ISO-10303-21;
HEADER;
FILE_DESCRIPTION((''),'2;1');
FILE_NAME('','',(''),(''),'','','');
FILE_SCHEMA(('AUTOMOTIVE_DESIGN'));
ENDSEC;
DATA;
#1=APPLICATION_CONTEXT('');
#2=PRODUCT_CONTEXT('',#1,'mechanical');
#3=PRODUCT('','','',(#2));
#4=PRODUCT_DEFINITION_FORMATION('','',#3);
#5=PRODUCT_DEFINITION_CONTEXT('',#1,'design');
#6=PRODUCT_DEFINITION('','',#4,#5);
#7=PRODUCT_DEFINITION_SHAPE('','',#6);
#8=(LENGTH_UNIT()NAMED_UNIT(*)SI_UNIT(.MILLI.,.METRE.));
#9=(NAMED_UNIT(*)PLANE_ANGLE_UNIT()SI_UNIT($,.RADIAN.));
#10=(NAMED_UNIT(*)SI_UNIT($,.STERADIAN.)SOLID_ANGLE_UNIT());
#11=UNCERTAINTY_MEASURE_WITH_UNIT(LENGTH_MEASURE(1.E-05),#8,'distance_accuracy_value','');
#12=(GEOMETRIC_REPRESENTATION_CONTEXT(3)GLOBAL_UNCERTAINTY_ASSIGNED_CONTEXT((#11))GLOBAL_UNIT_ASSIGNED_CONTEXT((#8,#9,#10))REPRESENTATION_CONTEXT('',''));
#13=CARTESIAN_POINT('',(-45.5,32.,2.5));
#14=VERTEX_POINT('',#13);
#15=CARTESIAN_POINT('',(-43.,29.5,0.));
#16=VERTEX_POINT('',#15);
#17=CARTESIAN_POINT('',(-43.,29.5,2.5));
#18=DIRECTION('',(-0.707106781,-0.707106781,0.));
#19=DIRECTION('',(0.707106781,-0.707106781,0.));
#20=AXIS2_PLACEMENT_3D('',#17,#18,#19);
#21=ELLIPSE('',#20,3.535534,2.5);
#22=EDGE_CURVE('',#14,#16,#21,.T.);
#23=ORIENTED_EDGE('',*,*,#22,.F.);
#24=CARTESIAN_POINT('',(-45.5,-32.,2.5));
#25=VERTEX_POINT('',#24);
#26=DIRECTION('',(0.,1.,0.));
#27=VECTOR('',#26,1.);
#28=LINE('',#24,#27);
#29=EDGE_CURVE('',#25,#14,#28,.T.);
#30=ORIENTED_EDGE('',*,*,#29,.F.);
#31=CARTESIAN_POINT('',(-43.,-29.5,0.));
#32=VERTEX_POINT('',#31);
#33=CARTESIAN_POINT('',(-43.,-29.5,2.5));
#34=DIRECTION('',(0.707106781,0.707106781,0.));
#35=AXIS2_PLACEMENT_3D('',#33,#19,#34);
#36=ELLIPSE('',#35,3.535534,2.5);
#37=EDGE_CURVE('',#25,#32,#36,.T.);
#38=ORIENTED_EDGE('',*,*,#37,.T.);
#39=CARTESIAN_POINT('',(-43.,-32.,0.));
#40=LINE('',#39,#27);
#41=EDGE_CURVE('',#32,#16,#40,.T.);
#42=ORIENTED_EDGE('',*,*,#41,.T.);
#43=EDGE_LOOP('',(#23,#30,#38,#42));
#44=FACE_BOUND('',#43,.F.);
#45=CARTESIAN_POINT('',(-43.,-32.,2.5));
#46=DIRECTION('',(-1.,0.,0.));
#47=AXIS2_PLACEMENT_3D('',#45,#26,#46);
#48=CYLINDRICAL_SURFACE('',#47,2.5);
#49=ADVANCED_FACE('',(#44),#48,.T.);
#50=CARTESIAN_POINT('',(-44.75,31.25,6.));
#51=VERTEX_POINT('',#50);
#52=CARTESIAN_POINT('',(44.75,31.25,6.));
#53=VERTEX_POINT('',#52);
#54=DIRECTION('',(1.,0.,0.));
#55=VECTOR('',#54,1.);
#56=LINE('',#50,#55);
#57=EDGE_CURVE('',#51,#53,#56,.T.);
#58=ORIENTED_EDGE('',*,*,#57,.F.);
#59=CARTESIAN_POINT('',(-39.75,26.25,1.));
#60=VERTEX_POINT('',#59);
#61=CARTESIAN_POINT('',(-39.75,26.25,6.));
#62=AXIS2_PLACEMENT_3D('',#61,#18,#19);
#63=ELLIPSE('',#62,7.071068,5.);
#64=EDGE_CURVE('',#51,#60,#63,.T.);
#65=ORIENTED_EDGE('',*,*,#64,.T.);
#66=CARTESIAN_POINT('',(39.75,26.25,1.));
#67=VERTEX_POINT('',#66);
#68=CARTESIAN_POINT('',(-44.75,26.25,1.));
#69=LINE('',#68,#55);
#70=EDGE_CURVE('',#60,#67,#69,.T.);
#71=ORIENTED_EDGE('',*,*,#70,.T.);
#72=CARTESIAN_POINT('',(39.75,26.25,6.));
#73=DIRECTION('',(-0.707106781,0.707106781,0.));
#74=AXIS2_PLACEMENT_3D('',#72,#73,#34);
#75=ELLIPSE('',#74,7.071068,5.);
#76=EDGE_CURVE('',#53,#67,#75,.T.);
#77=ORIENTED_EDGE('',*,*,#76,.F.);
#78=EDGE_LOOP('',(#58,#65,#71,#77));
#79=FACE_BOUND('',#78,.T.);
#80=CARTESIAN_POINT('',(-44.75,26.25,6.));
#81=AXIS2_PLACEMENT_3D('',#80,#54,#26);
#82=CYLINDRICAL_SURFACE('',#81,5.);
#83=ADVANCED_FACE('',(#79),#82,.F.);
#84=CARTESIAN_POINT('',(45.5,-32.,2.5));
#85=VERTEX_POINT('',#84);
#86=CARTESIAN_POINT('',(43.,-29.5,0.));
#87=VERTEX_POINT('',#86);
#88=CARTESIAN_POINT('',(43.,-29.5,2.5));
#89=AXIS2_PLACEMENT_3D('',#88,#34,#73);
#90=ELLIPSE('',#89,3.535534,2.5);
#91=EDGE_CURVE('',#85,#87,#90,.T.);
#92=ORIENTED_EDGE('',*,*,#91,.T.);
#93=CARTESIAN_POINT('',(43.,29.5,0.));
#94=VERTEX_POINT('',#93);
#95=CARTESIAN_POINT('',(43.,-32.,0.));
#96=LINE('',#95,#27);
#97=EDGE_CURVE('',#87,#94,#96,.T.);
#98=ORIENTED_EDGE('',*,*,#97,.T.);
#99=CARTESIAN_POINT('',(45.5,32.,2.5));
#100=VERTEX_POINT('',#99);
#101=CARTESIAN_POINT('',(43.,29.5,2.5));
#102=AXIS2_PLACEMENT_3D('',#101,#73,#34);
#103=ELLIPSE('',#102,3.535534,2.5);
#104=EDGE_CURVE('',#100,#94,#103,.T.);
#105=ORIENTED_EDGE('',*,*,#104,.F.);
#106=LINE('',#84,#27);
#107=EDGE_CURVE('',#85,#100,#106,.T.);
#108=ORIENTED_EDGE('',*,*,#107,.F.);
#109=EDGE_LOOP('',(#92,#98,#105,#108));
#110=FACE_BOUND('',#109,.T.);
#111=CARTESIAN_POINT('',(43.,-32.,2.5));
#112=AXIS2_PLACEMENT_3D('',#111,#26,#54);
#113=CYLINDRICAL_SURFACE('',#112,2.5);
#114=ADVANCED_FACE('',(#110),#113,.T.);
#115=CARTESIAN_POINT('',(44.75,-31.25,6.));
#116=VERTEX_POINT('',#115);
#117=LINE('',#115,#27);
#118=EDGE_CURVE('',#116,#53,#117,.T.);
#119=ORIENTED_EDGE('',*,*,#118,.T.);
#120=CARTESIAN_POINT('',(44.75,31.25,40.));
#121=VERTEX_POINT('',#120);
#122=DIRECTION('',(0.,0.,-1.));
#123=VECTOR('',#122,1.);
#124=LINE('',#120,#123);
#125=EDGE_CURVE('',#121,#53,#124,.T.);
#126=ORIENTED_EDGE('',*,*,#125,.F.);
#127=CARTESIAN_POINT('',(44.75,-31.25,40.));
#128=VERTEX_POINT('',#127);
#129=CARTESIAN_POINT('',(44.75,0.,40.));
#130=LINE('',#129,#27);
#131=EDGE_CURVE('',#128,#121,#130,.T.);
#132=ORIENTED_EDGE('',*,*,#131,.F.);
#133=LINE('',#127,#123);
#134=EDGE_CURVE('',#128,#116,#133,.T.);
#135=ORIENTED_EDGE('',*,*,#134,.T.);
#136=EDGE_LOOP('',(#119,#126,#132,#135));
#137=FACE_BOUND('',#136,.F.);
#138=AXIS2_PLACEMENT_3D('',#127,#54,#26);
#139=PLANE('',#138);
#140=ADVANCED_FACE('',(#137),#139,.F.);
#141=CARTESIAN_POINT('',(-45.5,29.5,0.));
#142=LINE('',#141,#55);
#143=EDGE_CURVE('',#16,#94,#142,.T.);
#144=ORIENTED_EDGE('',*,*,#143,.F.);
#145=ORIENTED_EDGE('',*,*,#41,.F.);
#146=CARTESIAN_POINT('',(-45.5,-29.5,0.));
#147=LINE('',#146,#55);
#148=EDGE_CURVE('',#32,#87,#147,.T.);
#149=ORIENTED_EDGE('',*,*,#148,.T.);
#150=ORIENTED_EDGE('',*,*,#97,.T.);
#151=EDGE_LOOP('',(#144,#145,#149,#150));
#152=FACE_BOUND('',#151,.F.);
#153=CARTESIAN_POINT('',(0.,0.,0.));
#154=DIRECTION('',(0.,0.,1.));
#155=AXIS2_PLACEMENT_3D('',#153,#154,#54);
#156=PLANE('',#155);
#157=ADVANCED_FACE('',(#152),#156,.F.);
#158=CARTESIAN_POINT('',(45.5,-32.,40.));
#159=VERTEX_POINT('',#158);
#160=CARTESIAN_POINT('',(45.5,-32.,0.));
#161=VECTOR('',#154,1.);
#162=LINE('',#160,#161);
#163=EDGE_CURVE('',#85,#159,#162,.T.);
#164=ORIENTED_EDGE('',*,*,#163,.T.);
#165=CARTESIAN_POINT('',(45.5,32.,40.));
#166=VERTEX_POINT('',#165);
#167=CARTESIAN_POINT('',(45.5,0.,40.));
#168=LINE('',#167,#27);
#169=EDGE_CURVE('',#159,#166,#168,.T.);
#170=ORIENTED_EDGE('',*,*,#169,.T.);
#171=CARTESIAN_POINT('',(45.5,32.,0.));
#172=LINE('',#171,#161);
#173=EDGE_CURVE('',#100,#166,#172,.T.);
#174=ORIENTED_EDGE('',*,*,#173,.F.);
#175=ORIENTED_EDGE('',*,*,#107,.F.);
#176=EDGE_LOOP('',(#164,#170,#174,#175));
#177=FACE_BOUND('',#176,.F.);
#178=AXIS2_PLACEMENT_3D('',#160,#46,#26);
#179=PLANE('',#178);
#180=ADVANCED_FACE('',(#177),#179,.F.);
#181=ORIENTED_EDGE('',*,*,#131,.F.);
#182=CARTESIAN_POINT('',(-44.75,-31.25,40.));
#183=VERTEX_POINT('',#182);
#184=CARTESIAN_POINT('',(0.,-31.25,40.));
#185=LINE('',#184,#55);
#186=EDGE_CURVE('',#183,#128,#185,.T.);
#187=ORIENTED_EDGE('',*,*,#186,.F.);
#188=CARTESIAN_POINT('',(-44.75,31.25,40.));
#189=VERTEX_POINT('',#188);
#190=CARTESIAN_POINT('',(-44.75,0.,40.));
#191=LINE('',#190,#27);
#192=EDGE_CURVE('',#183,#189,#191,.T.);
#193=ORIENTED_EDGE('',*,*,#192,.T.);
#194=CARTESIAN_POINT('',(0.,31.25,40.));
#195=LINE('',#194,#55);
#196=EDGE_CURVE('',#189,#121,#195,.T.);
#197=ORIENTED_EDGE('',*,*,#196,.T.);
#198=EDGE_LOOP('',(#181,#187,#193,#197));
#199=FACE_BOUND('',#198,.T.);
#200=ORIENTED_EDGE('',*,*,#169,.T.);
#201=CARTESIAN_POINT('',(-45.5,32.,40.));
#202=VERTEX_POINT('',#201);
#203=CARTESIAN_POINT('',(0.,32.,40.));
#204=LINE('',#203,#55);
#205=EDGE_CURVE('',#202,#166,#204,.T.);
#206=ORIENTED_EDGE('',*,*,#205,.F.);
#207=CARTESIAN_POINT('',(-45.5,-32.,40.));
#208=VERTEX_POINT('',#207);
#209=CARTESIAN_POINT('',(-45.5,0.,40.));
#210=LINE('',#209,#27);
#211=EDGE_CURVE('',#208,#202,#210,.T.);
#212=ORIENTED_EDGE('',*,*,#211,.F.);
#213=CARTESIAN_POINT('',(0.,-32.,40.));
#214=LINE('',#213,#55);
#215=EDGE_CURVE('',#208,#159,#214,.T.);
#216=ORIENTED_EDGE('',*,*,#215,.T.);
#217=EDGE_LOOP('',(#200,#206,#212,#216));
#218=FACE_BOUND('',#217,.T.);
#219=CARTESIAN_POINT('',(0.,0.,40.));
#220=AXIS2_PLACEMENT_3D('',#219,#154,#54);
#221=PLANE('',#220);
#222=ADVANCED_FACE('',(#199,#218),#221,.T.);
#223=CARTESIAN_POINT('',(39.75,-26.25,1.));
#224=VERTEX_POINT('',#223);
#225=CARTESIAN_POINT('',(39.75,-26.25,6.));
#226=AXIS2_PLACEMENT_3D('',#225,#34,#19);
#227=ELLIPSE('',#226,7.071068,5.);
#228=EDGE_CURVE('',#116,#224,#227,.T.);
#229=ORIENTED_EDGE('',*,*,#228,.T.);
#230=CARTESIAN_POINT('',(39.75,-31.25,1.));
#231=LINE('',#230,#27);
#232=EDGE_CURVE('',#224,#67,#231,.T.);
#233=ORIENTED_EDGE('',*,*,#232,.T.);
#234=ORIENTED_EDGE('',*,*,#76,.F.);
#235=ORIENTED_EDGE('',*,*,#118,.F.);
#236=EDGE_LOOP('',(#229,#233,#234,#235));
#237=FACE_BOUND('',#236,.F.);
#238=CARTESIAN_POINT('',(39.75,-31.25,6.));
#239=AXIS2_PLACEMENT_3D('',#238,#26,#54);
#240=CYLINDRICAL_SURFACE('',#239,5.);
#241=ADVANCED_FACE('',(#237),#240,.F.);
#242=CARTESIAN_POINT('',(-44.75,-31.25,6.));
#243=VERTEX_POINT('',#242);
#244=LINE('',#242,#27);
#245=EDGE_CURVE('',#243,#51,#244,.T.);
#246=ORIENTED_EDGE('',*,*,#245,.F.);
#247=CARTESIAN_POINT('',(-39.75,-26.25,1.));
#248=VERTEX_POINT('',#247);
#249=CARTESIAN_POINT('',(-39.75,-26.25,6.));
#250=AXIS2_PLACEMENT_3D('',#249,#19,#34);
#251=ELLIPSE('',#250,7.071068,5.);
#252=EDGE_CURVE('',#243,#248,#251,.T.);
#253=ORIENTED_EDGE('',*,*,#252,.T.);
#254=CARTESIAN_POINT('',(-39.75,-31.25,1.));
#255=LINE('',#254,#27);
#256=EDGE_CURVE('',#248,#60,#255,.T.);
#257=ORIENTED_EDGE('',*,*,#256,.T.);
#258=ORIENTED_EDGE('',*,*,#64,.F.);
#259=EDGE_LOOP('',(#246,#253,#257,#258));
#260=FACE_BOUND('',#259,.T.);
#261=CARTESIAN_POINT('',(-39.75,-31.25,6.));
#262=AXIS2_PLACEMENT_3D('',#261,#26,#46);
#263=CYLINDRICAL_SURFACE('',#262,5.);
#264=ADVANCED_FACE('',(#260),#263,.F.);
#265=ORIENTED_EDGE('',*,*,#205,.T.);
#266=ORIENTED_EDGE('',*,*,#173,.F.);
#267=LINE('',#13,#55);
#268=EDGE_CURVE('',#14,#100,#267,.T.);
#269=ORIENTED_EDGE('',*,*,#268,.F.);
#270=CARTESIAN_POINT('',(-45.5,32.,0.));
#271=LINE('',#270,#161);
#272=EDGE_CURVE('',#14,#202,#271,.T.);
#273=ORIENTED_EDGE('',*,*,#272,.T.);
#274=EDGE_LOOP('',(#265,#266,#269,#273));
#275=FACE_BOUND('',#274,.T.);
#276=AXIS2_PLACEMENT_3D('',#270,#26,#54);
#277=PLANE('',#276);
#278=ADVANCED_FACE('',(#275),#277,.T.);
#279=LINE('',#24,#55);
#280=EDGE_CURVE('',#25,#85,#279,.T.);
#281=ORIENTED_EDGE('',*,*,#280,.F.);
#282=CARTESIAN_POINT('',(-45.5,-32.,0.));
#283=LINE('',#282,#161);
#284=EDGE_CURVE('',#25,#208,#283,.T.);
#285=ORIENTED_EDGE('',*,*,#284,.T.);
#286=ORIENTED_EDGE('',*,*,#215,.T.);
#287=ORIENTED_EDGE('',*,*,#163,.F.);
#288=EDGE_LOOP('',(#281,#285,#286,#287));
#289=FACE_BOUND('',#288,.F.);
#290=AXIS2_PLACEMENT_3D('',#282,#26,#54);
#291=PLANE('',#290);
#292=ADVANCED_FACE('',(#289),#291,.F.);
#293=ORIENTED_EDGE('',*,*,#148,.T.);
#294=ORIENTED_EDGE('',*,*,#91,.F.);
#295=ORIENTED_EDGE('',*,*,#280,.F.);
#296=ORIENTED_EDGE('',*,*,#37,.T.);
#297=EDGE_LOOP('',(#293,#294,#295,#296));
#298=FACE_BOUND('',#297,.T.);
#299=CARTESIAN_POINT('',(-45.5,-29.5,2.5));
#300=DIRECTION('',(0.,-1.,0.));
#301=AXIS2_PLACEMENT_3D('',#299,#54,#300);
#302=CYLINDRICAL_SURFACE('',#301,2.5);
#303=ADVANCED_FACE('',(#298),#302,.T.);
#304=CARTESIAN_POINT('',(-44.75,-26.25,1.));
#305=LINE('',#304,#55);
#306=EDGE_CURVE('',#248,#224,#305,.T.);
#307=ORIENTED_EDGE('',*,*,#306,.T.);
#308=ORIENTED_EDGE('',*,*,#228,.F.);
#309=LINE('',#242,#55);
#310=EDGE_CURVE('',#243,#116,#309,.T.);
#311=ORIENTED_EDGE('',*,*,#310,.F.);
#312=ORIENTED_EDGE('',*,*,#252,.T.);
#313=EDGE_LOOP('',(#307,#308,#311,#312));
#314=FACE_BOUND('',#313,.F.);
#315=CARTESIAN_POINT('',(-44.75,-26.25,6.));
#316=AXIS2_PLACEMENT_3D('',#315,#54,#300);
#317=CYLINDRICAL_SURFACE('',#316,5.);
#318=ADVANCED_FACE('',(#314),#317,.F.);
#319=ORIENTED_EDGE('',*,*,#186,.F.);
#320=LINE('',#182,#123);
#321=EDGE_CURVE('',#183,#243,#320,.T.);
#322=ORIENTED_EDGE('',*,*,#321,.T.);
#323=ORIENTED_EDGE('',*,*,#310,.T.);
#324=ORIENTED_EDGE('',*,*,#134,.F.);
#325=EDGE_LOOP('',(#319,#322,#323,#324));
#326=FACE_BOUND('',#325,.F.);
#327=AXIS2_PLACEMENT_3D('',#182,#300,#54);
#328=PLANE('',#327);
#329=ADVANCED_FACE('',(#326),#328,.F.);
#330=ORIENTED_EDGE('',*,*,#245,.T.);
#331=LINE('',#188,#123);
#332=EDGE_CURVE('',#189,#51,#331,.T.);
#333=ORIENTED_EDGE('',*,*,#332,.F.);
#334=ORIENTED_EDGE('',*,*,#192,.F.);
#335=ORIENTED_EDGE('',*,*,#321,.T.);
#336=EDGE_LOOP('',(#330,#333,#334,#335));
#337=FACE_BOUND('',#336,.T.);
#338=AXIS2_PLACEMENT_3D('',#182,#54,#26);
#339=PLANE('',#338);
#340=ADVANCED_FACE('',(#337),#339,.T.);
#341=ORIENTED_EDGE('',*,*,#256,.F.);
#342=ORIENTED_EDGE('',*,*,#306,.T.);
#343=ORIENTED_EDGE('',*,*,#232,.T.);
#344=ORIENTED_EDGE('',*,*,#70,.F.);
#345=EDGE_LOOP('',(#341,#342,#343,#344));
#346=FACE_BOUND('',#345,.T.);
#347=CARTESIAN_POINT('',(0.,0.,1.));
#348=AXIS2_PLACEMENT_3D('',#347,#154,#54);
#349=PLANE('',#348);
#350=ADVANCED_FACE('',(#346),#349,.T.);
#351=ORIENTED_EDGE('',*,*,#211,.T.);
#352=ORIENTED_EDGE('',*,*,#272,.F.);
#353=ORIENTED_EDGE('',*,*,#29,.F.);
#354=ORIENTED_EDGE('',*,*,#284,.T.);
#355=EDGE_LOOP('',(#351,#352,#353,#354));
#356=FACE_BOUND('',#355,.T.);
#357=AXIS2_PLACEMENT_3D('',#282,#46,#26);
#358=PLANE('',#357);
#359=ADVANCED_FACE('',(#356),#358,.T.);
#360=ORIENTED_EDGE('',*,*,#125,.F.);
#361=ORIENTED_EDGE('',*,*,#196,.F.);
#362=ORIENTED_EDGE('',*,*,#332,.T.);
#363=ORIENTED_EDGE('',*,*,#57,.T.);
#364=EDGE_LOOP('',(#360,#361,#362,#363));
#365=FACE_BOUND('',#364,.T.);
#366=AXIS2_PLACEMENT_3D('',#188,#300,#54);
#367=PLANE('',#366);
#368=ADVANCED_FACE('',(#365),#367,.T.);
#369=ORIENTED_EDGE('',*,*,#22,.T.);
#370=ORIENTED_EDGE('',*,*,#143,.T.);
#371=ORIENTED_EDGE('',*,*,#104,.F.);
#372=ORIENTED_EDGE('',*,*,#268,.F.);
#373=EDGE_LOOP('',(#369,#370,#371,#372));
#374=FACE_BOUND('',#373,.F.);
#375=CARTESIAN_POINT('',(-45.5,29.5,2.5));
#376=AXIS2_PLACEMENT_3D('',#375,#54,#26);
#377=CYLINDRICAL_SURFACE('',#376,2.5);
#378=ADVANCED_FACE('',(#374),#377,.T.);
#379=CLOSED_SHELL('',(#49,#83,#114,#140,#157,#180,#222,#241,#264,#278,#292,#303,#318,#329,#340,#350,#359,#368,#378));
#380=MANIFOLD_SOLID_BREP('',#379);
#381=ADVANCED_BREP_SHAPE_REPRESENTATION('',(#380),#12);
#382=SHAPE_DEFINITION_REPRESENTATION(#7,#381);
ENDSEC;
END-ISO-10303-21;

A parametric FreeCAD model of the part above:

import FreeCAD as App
import Part
import Sketcher

V = App.Vector


def edges_at(feature, points):
    """Names of the edges that pass closest to the given points."""
    edges = feature.Shape.Edges
    near = lambda p: min(range(len(edges)), key=lambda i: edges[i].distToShape(Part.Vertex(*p))[0])
    return sorted({f"Edge{near(p) + 1}" for p in points})


def add_polygon(sketch, points):
    """Adds a closed chain of lines whose ends are joined by coincident constraints."""
    first, n = sketch.GeometryCount, len(points)
    for a, b in zip(points, points[1:] + points[:1]):
        sketch.addGeometry(Part.LineSegment(App.Vector(*a, 0), App.Vector(*b, 0)), False)
    for i in range(n):
        sketch.addConstraint(Sketcher.Constraint("Coincident", first + i, 2, first + (i + 1) % n, 1))

doc = App.newDocument("Part")
params = doc.addObject("Spreadsheet::Sheet", "Params")
for row, (alias, value) in enumerate([
    ("sketch1_width", "91 mm"),
    ("sketch1_height", "64 mm"),
    ("pad1_length", "40 mm"),
    ("sketch2_width", "89.5 mm"),
    ("sketch2_height", "62.5 mm"),
    ("pocket1_length", "39 mm"),
    ("fillet_radius", "5 mm"),
    ("fillet2_radius", "2.5 mm"),
], start=1):
    params.set(f"A{row}", alias)
    params.set(f"B{row}", "=" + value)
    params.setAlias(f"B{row}", alias)

body = doc.addObject("PartDesign::Body", "Body")

# Sketch on XY plane
sketch1 = body.newObject("Sketcher::SketchObject", "Sketch")
sketch1.AttachmentSupport = (doc.getObject("XY_Plane"), [""])
sketch1.MapMode = "FlatFace"
add_polygon(sketch1, [(-46, 32), (-46, -32), (46, -32), (46, 32)])  # lines 0-3
sketch1.addConstraint(Sketcher.Constraint("Vertical", 0))
sketch1.addConstraint(Sketcher.Constraint("Horizontal", 1))
sketch1.addConstraint(Sketcher.Constraint("Vertical", 2))
sketch1.addConstraint(Sketcher.Constraint("Horizontal", 3))
sketch1.addConstraint(Sketcher.Constraint("Symmetric", 0, 2, 2, 2, -1, 1))
sketch1.addConstraint(Sketcher.Constraint("DistanceX", 1, 1, 1, 2, 91.0))
sketch1.addConstraint(Sketcher.Constraint("DistanceY", 0, 2, 0, 1, 64.0))
sketch1.setExpression("Constraints[9]", "Params.sketch1_width")
sketch1.setExpression("Constraints[10]", "Params.sketch1_height")
pad1 = body.newObject("PartDesign::Pad", "Pad")
pad1.Profile = sketch1
pad1.setExpression("Length", "Params.pad1_length")

# Sketch on XY plane
sketch2 = body.newObject("Sketcher::SketchObject", "Sketch001")
sketch2.AttachmentSupport = (doc.getObject("XY_Plane"), [""])
sketch2.MapMode = "FlatFace"
sketch2.AttachmentOffset = App.Placement(V(0, 0, 40), App.Rotation())
add_polygon(sketch2, [(-45, 31), (-45, -31), (45, -31), (45, 31)])  # lines 0-3
sketch2.addConstraint(Sketcher.Constraint("Vertical", 0))
sketch2.addConstraint(Sketcher.Constraint("Horizontal", 1))
sketch2.addConstraint(Sketcher.Constraint("Vertical", 2))
sketch2.addConstraint(Sketcher.Constraint("Horizontal", 3))
sketch2.addConstraint(Sketcher.Constraint("Symmetric", 0, 2, 2, 2, -1, 1))
sketch2.addConstraint(Sketcher.Constraint("DistanceX", 1, 1, 1, 2, 89.5))
sketch2.addConstraint(Sketcher.Constraint("DistanceY", 0, 2, 0, 1, 62.5))
sketch2.setExpression("Constraints[9]", "Params.sketch2_width")
sketch2.setExpression("Constraints[10]", "Params.sketch2_height")
pocket1 = body.newObject("PartDesign::Pocket", "Pocket")
pocket1.Profile = sketch2
pocket1.setExpression("Length", "Params.pocket1_length")
doc.recompute()

fillet = body.newObject("PartDesign::Fillet", "Fillet")
fillet.Base = (pocket1, edges_at(pocket1, [
    (0, 31.25, 1),
    (-44.75, 0, 1),
    (0, -31.25, 1),
    (44.75, 0, 1),
]))
fillet.setExpression("Radius", "Params.fillet_radius")
doc.recompute()

fillet2 = body.newObject("PartDesign::Fillet", "Fillet001")
fillet2.Base = (fillet, edges_at(fillet, [
    (45.5, 0, 0),
    (0, 32, 0),
    (-45.5, 0, 0),
    (0, -32, 0),
]))
fillet2.setExpression("Radius", "Params.fillet2_radius")

doc.recompute()
